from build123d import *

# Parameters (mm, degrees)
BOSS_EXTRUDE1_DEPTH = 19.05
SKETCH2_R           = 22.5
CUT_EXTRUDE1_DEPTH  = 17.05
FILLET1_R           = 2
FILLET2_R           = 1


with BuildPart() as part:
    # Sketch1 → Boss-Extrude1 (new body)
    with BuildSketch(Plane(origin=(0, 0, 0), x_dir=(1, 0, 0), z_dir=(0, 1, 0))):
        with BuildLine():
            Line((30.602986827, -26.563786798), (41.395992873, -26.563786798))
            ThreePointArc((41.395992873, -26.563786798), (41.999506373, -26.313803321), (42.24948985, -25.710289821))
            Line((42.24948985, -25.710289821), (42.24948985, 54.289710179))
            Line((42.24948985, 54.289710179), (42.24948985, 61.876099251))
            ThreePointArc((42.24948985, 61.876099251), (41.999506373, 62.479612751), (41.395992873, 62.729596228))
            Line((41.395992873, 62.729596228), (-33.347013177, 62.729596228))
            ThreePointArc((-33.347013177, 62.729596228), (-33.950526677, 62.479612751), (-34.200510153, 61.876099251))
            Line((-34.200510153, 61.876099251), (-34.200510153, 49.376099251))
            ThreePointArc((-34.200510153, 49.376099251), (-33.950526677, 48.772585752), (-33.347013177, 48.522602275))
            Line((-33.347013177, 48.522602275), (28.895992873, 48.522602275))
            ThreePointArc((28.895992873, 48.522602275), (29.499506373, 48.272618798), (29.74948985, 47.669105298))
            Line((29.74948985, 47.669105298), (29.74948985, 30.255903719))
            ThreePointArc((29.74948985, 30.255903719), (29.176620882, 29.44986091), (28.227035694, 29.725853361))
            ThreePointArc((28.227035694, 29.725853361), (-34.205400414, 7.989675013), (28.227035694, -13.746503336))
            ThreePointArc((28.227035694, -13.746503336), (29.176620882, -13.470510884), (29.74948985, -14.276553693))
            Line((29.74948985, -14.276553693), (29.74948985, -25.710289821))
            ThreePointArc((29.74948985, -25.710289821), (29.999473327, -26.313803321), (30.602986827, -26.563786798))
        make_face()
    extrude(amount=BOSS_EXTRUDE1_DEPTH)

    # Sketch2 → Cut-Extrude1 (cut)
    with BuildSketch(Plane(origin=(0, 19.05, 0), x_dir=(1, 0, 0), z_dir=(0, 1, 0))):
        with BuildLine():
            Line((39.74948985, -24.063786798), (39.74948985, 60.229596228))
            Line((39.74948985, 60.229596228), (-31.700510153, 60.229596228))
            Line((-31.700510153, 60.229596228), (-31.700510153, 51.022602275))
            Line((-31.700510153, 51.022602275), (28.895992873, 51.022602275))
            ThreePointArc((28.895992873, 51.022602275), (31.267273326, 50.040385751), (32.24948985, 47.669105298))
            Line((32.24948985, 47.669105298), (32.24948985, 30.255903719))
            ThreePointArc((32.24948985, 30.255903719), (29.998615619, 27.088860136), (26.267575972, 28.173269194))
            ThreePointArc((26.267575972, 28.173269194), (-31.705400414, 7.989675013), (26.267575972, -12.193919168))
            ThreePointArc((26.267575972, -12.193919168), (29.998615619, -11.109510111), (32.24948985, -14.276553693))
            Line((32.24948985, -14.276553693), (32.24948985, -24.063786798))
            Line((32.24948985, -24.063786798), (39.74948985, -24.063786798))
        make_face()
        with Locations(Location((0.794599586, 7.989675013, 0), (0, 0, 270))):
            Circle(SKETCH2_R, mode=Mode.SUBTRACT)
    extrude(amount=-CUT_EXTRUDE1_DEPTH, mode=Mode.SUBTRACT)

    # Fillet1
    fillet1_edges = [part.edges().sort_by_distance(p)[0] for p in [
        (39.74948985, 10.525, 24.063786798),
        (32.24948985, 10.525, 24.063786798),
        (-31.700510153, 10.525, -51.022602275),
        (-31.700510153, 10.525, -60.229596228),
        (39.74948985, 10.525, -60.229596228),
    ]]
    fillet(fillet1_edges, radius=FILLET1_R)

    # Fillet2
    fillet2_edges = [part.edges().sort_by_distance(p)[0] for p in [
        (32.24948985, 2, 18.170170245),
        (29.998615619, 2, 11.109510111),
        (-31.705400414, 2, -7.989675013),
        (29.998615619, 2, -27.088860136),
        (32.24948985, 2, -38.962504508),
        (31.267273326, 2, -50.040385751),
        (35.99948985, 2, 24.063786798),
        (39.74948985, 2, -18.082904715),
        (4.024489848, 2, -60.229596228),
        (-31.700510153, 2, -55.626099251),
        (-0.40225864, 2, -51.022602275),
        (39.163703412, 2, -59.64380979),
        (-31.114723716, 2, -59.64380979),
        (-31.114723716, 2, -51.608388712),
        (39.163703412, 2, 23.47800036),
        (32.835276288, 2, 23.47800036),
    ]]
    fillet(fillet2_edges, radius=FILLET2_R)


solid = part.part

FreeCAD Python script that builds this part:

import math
import FreeCAD as App
import Part
import Sketcher

V = App.Vector


def edges_at(feature, points):
    """Names of the edges that pass closest to the given points."""
    edges = feature.Shape.Edges
    near = lambda p: min(range(len(edges)), key=lambda i: edges[i].distToShape(Part.Vertex(*p))[0])
    return sorted({f"Edge{near(p) + 1}" for p in points})

doc = App.newDocument("Part")
body = doc.addObject("PartDesign::Body", "Body")

# Sketch on XZ plane
sketch1 = body.newObject("Sketcher::SketchObject", "Sketch")
sketch1.AttachmentSupport = (doc.getObject("XZ_Plane"), [""])
sketch1.MapMode = "FlatFace"
sketch1.addGeometry([
    Part.LineSegment(V(30.6, 26.6, 0), V(41.4, 26.6, 0)),  # 0
    Part.ArcOfCircle(Part.Circle(V(41.4, 25.7, 0), V(0, 0, 1), 0.9), math.radians(0), math.radians(90)),  # 1
    Part.LineSegment(V(42.2, 25.7, 0), V(42.2, -61.9, 0)),  # 2
    Part.ArcOfCircle(Part.Circle(V(41.4, -61.9, 0), V(0, 0, 1), 0.9), math.radians(-90), math.radians(0)),  # 3
    Part.LineSegment(V(41.4, -62.7, 0), V(-33.3, -62.7, 0)),  # 4
    Part.ArcOfCircle(Part.Circle(V(-33.3, -61.9, 0), V(0, 0, 1), 0.9), math.radians(180), math.radians(270)),  # 5
    Part.LineSegment(V(-34.2, -61.9, 0), V(-34.2, -49.4, 0)),  # 6
    Part.ArcOfCircle(Part.Circle(V(-33.3, -49.4, 0), V(0, 0, 1), 0.9), math.radians(90), math.radians(180)),  # 7
    Part.LineSegment(V(-33.3, -48.5, 0), V(28.9, -48.5, 0)),  # 8
    Part.ArcOfCircle(Part.Circle(V(28.9, -47.7, 0), V(0, 0, 1), 0.9), math.radians(-90), math.radians(0)),  # 9
    Part.LineSegment(V(29.7, -47.7, 0), V(29.7, -30.3, 0)),  # 10
    Part.ArcOfCircle(Part.Circle(V(28.9, -30.3, 0), V(0, 0, 1), 0.9), math.radians(0), math.radians(142)),  # 11
    Part.ArcOfCircle(Part.Circle(V(0.8, -8, 0), V(0, 0, 1), 35), math.radians(38), math.radians(322)),  # 12
    Part.ArcOfCircle(Part.Circle(V(28.9, 14.3, 0), V(0, 0, 1), 0.9), math.radians(-142), math.radians(0)),  # 13
    Part.LineSegment(V(29.7, 14.3, 0), V(29.7, 25.7, 0)),  # 14
    Part.ArcOfCircle(Part.Circle(V(30.6, 25.7, 0), V(0, 0, 1), 0.9), math.radians(90), math.radians(180)),  # 15
], False)
sketch1.addConstraint([
    Sketcher.Constraint("Tangent", 0, 2, 1, 2),
    Sketcher.Constraint("Tangent", 1, 1, 2, 1),
    Sketcher.Constraint("Tangent", 2, 2, 3, 2),
    Sketcher.Constraint("Tangent", 3, 1, 4, 1),
    Sketcher.Constraint("Tangent", 4, 2, 5, 2),
    Sketcher.Constraint("Tangent", 5, 1, 6, 1),
    Sketcher.Constraint("Tangent", 6, 2, 7, 2),
    Sketcher.Constraint("Tangent", 7, 1, 8, 1),
    Sketcher.Constraint("Tangent", 8, 2, 9, 1),
    Sketcher.Constraint("Tangent", 9, 2, 10, 1),
    Sketcher.Constraint("Tangent", 10, 2, 11, 1),
    Sketcher.Constraint("Tangent", 11, 2, 12, 2),
    Sketcher.Constraint("Tangent", 12, 1, 13, 1),
    Sketcher.Constraint("Tangent", 13, 2, 14, 1),
    Sketcher.Constraint("Tangent", 14, 2, 15, 2),
    Sketcher.Constraint("Tangent", 15, 1, 0, 1),
    Sketcher.Constraint("Horizontal", 0),
    Sketcher.Constraint("Vertical", 2),
    Sketcher.Constraint("Horizontal", 4),
    Sketcher.Constraint("Vertical", 6),
    Sketcher.Constraint("Horizontal", 8),
    Sketcher.Constraint("Vertical", 10),
    Sketcher.Constraint("Vertical", 14),
    Sketcher.Constraint("Equal", 1, 3),
    Sketcher.Constraint("Equal", 3, 5),
    Sketcher.Constraint("Equal", 5, 7),
    Sketcher.Constraint("Equal", 7, 9),
    Sketcher.Constraint("Equal", 9, 11),
    Sketcher.Constraint("Equal", 11, 13),
    Sketcher.Constraint("Equal", 13, 15),
    Sketcher.Constraint("Vertical", 11, 3, 13, 3),
    Sketcher.Constraint("Radius", 12, 35.0),
    Sketcher.Constraint("DistanceY", 6, 1, 6, 2, 12.5),
    Sketcher.Constraint("DistanceX", 9, 3, 3, 3, 12.5),
    Sketcher.Constraint("DistanceY", 10, 1, 10, 2, 17.413202),
    Sketcher.Constraint("Radius", 1, 0.853497),
    Sketcher.Constraint("DistanceY", 2, 2, 2, 1, 87.586389),
    Sketcher.Constraint("DistanceY", 3, 3, -1, 1, 61.876099),
    Sketcher.Constraint("DistanceX", -1, 1, 12, 3, 0.7946),
    Sketcher.Constraint("DistanceX", 4, 2, 4, 1, 74.743006),
    Sketcher.Constraint("DistanceY", 14, 1, 14, 2, 11.433736),
])
pad1 = body.newObject("PartDesign::Pad", "Pad")
pad1.Profile = sketch1
pad1.Length = 19.05
pad1.Reversed = True

# Sketch on XZ plane
sketch2 = body.newObject("Sketcher::SketchObject", "Sketch001")
sketch2.AttachmentSupport = (doc.getObject("XZ_Plane"), [""])
sketch2.MapMode = "FlatFace"
sketch2.AttachmentOffset = App.Placement(V(0, 0, -19.05), App.Rotation())
sketch2.addGeometry([
    Part.LineSegment(V(39.7, 24.1, 0), V(39.7, -60.2, 0)),  # 0
    Part.LineSegment(V(39.7, -60.2, 0), V(-31.7, -60.2, 0)),  # 1
    Part.LineSegment(V(-31.7, -60.2, 0), V(-31.7, -51, 0)),  # 2
    Part.LineSegment(V(-31.7, -51, 0), V(28.9, -51, 0)),  # 3
    Part.ArcOfCircle(Part.Circle(V(28.9, -47.7, 0), V(0, 0, 1), 3.4), math.radians(-90), math.radians(0)),  # 4
    Part.LineSegment(V(32.2, -47.7, 0), V(32.2, -30.3, 0)),  # 5
    Part.ArcOfCircle(Part.Circle(V(28.9, -30.3, 0), V(0, 0, 1), 3.4), math.radians(0), math.radians(142)),  # 6
    Part.ArcOfCircle(Part.Circle(V(0.8, -8, 0), V(0, 0, 1), 32.5), math.radians(38), math.radians(322)),  # 7
    Part.ArcOfCircle(Part.Circle(V(28.9, 14.3, 0), V(0, 0, 1), 3.4), math.radians(-142), math.radians(0)),  # 8
    Part.LineSegment(V(32.2, 14.3, 0), V(32.2, 24.1, 0)),  # 9
    Part.LineSegment(V(32.2, 24.1, 0), V(39.7, 24.1, 0)),  # 10
    Part.Circle(V(0.8, -8, 0), V(0, 0, 1), 22.5),  # 11
], False)
sketch2.addConstraint([
    Sketcher.Constraint("Coincident", 0, 2, 1, 1),
    Sketcher.Constraint("Coincident", 1, 2, 2, 1),
    Sketcher.Constraint("Coincident", 2, 2, 3, 1),
    Sketcher.Constraint("Tangent", 3, 2, 4, 1),
    Sketcher.Constraint("Tangent", 4, 2, 5, 1),
    Sketcher.Constraint("Tangent", 5, 2, 6, 1),
    Sketcher.Constraint("Tangent", 6, 2, 7, 2),
    Sketcher.Constraint("Tangent", 7, 1, 8, 1),
    Sketcher.Constraint("Tangent", 8, 2, 9, 1),
    Sketcher.Constraint("Coincident", 9, 2, 10, 1),
    Sketcher.Constraint("Coincident", 10, 2, 0, 1),
    Sketcher.Constraint("Vertical", 0),
    Sketcher.Constraint("Horizontal", 1),
    Sketcher.Constraint("Vertical", 2),
    Sketcher.Constraint("Horizontal", 3),
    Sketcher.Constraint("Vertical", 5),
    Sketcher.Constraint("Vertical", 9),
    Sketcher.Constraint("Horizontal", 10),
    Sketcher.Constraint("Coincident", 11, 3, 7, 3),
    Sketcher.Constraint("Equal", 4, 6),
    Sketcher.Constraint("Equal", 6, 8),
    Sketcher.Constraint("Vertical", 6, 3, 8, 3),
    Sketcher.Constraint("Diameter", 11, 45.0),
    Sketcher.Constraint("Radius", 7, 32.5),
    Sketcher.Constraint("DistanceX", 10, 1, 10, 2, 7.5),
    Sketcher.Constraint("DistanceX", 1, 2, 1, 1, 71.45),
    Sketcher.Constraint("DistanceY", 5, 1, 5, 2, 17.413202),
    Sketcher.Constraint("Radius", 4, 3.353497),
    Sketcher.Constraint("DistanceX", -1, 1, 7, 3, 0.7946),
    Sketcher.Constraint("DistanceY", 0, 2, 0, 1, 84.293383),
    Sketcher.Constraint("DistanceY", 2, 1, 2, 2, 9.206994),
    Sketcher.Constraint("DistanceY", 9, 1, 9, 2, 9.787233),
    Sketcher.Constraint("DistanceY", 6, 2, -1, 1, 28.173269),
])
pocket1 = body.newObject("PartDesign::Pocket", "Pocket")
pocket1.Profile = sketch2
pocket1.Length = 17.05
pocket1.Reversed = True
doc.recompute()

fillet = body.newObject("PartDesign::Fillet", "Fillet")
fillet.Base = (pocket1, edges_at(pocket1, [
    (39.749, 10.525, 24.064),
    (32.249, 10.525, 24.064),
    (-31.701, 10.525, -51.023),
    (-31.701, 10.525, -60.23),
    (39.749, 10.525, -60.23),
]))
fillet.Radius = 2
doc.recompute()

fillet2 = body.newObject("PartDesign::Fillet", "Fillet001")
fillet2.Base = (fillet, edges_at(fillet, [
    (32.249, 2, 18.17),
    (29.999, 2, 11.11),
    (-31.705, 2, -7.99),
    (29.999, 2, -27.089),
    (32.249, 2, -38.963),
    (31.267, 2, -50.04),
    (35.999, 2, 24.064),
    (39.749, 2, -18.083),
    (4.024, 2, -60.23),
    (-31.701, 2, -55.626),
    (-0.402, 2, -51.023),
    (39.164, 2, -59.644),
    (-31.115, 2, -59.644),
    (-31.115, 2, -51.608),
    (39.164, 2, 23.478),
    (32.835, 2, 23.478),
]))
fillet2.Radius = 1

doc.recompute()
